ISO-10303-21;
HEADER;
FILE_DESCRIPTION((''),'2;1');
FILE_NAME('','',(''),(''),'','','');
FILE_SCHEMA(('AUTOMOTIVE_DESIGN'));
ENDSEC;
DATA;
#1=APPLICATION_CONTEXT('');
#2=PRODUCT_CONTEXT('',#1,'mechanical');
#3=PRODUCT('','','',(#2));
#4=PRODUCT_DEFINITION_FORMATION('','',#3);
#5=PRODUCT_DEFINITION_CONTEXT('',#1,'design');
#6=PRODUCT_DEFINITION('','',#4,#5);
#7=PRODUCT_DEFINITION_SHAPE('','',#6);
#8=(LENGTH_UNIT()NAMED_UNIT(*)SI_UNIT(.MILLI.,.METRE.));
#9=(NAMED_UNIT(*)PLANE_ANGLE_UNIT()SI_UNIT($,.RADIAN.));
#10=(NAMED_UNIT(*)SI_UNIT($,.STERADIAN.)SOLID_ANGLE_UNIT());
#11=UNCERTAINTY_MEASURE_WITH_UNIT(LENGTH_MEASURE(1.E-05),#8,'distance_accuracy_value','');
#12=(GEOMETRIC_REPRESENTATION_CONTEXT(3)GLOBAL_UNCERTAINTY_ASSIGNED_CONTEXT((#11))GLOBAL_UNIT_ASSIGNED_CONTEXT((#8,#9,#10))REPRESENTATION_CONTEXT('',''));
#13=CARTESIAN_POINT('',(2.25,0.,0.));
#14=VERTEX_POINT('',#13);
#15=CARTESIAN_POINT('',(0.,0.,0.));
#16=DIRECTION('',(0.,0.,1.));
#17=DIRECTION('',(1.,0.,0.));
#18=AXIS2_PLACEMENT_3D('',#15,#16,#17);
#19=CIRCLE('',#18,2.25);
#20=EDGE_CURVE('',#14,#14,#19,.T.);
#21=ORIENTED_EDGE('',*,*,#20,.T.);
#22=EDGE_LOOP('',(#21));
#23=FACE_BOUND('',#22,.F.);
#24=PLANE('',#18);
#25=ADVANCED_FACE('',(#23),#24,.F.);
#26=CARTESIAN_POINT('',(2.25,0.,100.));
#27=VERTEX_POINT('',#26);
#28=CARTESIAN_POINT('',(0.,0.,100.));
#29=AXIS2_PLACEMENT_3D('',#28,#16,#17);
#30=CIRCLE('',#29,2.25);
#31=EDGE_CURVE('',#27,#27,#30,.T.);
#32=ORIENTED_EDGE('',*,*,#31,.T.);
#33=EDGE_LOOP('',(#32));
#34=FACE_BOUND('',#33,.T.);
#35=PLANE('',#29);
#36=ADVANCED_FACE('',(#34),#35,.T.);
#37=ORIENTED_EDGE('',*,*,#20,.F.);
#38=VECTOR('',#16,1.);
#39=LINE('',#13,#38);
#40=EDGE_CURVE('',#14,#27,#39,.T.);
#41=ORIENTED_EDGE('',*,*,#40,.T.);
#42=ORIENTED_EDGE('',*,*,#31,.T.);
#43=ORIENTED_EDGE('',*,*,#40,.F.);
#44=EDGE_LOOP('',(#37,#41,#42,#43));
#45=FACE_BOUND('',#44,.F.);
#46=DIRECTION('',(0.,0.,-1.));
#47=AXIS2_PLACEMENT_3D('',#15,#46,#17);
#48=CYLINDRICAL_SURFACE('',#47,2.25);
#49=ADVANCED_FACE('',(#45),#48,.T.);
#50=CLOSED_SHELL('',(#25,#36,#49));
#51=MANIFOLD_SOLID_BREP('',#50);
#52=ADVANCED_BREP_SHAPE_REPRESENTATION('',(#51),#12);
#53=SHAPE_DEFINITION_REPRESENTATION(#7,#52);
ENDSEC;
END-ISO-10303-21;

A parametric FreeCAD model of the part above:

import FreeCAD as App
import Part
import Sketcher
Q = App.Units.Quantity

doc = App.newDocument("Part")
params = doc.addObject("Spreadsheet::Sheet", "Params")
for row, (alias, value) in enumerate([
    ("sketch1_diameter", "4.5 mm"),
    ("pad1_length", "100 mm"),
], start=1):
    params.set(f"A{row}", alias)
    params.set(f"B{row}", "=" + value)
    params.setAlias(f"B{row}", alias)

body = doc.addObject("PartDesign::Body", "Body")

# Sketch on XY plane
sketch1 = body.newObject("Sketcher::SketchObject", "Sketch")
sketch1.AttachmentSupport = (doc.getObject("XY_Plane"), [""])
sketch1.MapMode = "FlatFace"
sketch1.addGeometry(Part.Circle(App.Vector(0, 0, 0), App.Vector(0, 0, 1), 2.2), False)
sketch1.addConstraint([
    Sketcher.Constraint("Coincident", 0, 3, -1, 1),
    Sketcher.Constraint("Diameter", 0, Q("4.5 mm")),
])
sketch1.setExpression("Constraints[1]", "Params.sketch1_diameter")
pad1 = body.newObject("PartDesign::Pad", "Pad")
pad1.Profile = sketch1
pad1.setExpression("Length", "Params.pad1_length")

doc.recompute()
